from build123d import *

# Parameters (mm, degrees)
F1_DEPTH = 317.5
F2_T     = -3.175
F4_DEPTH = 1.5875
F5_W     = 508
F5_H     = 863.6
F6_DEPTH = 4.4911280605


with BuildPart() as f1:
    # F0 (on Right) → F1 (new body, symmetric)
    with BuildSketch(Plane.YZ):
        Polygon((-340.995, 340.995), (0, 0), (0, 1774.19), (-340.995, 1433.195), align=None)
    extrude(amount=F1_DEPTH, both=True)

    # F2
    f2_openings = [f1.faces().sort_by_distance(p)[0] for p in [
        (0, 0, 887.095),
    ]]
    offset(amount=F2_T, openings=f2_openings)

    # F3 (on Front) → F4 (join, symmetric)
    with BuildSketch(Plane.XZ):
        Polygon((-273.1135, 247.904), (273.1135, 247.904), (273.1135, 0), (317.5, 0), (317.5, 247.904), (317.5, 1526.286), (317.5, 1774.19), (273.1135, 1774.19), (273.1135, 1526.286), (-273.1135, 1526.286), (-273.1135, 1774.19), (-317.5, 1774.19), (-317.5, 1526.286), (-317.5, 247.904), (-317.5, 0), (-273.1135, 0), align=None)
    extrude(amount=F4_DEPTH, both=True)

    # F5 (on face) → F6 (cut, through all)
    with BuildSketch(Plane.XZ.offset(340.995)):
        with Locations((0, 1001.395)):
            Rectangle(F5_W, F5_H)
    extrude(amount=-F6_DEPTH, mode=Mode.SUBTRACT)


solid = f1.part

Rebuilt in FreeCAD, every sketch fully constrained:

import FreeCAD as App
import Part
import Sketcher
from FreeCAD import Vector
Q = App.Units.Quantity


def faces_at(feature, points):
    """Names of the faces that lie closest to the given points."""
    faces = feature.Shape.Faces
    near = lambda p: min(range(len(faces)), key=lambda i: faces[i].distToShape(Part.Vertex(*p))[0])
    return sorted({f"Face{near(p) + 1}" for p in points})

doc = App.newDocument("Part")
body = doc.addObject("PartDesign::Body", "Body")

sketch1 = body.newObject("Sketcher::SketchObject", "Sketch")
sketch1.AttachmentSupport = (doc.getObject("YZ_Plane"), [""])
sketch1.MapMode = "FlatFace"
sketch1.addGeometry(Part.LineSegment(Vector(-341, 341, 0), Vector(0, 0, 0)), False)
sketch1.addGeometry(Part.LineSegment(Vector(0, 0, 0), Vector(0, 1774, 0)), False)
sketch1.addGeometry(Part.LineSegment(Vector(0, 1774, 0), Vector(-341, 1433, 0)), False)
sketch1.addGeometry(Part.LineSegment(Vector(-341, 1433, 0), Vector(-341, 341, 0)), False)
sketch1.addConstraint(Sketcher.Constraint("Coincident", 0, 2, 1, 1))
sketch1.addConstraint(Sketcher.Constraint("Coincident", 1, 2, 2, 1))
sketch1.addConstraint(Sketcher.Constraint("Coincident", 2, 2, 3, 1))
sketch1.addConstraint(Sketcher.Constraint("Coincident", 3, 2, 0, 1))
sketch1.addConstraint(Sketcher.Constraint("Vertical", 1))
sketch1.addConstraint(Sketcher.Constraint("Vertical", 3))
sketch1.addConstraint(Sketcher.Constraint("Coincident", 0, 2, -1, 1))
sketch1.addConstraint(Sketcher.Constraint("Perpendicular", 0, 2))
sketch1.addConstraint(Sketcher.Constraint("Equal", 0, 2))
sketch1.addConstraint(Sketcher.Constraint("DistanceY", 3, 2, 3, 1, Q("43 in")))
sketch1.addConstraint(Sketcher.Constraint("DistanceY", 1, 1, 1, 2, Q("69.85 in")))
pad1 = body.newObject("PartDesign::Pad", "Pad")
pad1.Profile = sketch1
pad1.Length = Q("25 in")
pad1.Midplane = True
doc.recompute()

thickness = body.newObject("PartDesign::Thickness", "Thickness")
thickness.Base = (pad1, faces_at(pad1, [(0, 0, 887.095)]))
thickness.Value = Q("0.125 in")
thickness.Reversed = True
thickness.Join = "Arc"

sketch2 = body.newObject("Sketcher::SketchObject", "Sketch001")
sketch2.AttachmentSupport = (doc.getObject("XZ_Plane"), [""])
sketch2.MapMode = "FlatFace"
sketch2.addGeometry(Part.LineSegment(Vector(-273, 248, 0), Vector(273, 248, 0)), False)
sketch2.addGeometry(Part.LineSegment(Vector(273, 248, 0), Vector(273, 0, 0)), False)
sketch2.addGeometry(Part.LineSegment(Vector(273, 0, 0), Vector(318, 0, 0)), False)
sketch2.addGeometry(Part.LineSegment(Vector(318, 0, 0), Vector(318, 1774, 0)), False)
sketch2.addGeometry(Part.LineSegment(Vector(318, 1774, 0), Vector(273, 1774, 0)), False)
sketch2.addGeometry(Part.LineSegment(Vector(273, 1774, 0), Vector(273, 1526, 0)), False)
sketch2.addGeometry(Part.LineSegment(Vector(273, 1526, 0), Vector(-273, 1526, 0)), False)
sketch2.addGeometry(Part.LineSegment(Vector(-273, 1526, 0), Vector(-273, 1774, 0)), False)
sketch2.addGeometry(Part.LineSegment(Vector(-273, 1774, 0), Vector(-318, 1774, 0)), False)
sketch2.addGeometry(Part.LineSegment(Vector(-318, 1774, 0), Vector(-318, 0, 0)), False)
sketch2.addGeometry(Part.LineSegment(Vector(-318, 0, 0), Vector(-273, 0, 0)), False)
sketch2.addGeometry(Part.LineSegment(Vector(-273, 0, 0), Vector(-273, 248, 0)), False)
sketch2.addConstraint(Sketcher.Constraint("Coincident", 0, 2, 1, 1))
sketch2.addConstraint(Sketcher.Constraint("Coincident", 1, 2, 2, 1))
sketch2.addConstraint(Sketcher.Constraint("Coincident", 2, 2, 3, 1))
sketch2.addConstraint(Sketcher.Constraint("Coincident", 3, 2, 4, 1))
sketch2.addConstraint(Sketcher.Constraint("Coincident", 4, 2, 5, 1))
sketch2.addConstraint(Sketcher.Constraint("Coincident", 5, 2, 6, 1))
sketch2.addConstraint(Sketcher.Constraint("Coincident", 6, 2, 7, 1))
sketch2.addConstraint(Sketcher.Constraint("Coincident", 7, 2, 8, 1))
sketch2.addConstraint(Sketcher.Constraint("Coincident", 8, 2, 9, 1))
sketch2.addConstraint(Sketcher.Constraint("Coincident", 9, 2, 10, 1))
sketch2.addConstraint(Sketcher.Constraint("Coincident", 10, 2, 11, 1))
sketch2.addConstraint(Sketcher.Constraint("Coincident", 11, 2, 0, 1))
sketch2.addConstraint(Sketcher.Constraint("Horizontal", 0))
sketch2.addConstraint(Sketcher.Constraint("Vertical", 1))
sketch2.addConstraint(Sketcher.Constraint("Horizontal", 2))
sketch2.addConstraint(Sketcher.Constraint("Vertical", 3))
sketch2.addConstraint(Sketcher.Constraint("Horizontal", 4))
sketch2.addConstraint(Sketcher.Constraint("Vertical", 5))
sketch2.addConstraint(Sketcher.Constraint("Horizontal", 6))
sketch2.addConstraint(Sketcher.Constraint("Vertical", 7))
sketch2.addConstraint(Sketcher.Constraint("Horizontal", 8))
sketch2.addConstraint(Sketcher.Constraint("Vertical", 9))
sketch2.addConstraint(Sketcher.Constraint("Horizontal", 10))
sketch2.addConstraint(Sketcher.Constraint("Vertical", 11))
sketch2.addConstraint(Sketcher.Constraint("Symmetric", 2, 2, 9, 2, -1, 1))
sketch2.addConstraint(Sketcher.Constraint("Symmetric", 4, 2, 7, 2, -2))
sketch2.addConstraint(Sketcher.Constraint("Symmetric", 1, 2, 10, 2, -2))
sketch2.addConstraint(Sketcher.Constraint("Vertical", 1, 2, 4, 2))
sketch2.addConstraint(Sketcher.Constraint("Equal", 1, 5))
sketch2.addConstraint(Sketcher.Constraint("DistanceX", 8, 2, 3, 2, Q("25 in")))
sketch2.addConstraint(Sketcher.Constraint("DistanceY", 1, 2, 1, 1, Q("9.76 in")))
sketch2.addConstraint(Sketcher.Constraint("DistanceY", 3, 1, 3, 2, Q("69.85 in")))
sketch2.addConstraint(Sketcher.Constraint("DistanceX", 0, 1, 0, 2, Q("21.505 in")))
pad2 = body.newObject("PartDesign::Pad", "Pad001")
pad2.Profile = sketch2
pad2.Length = Q("0.125 in")
pad2.Midplane = True

sketch3 = body.newObject("Sketcher::SketchObject", "Sketch002")
sketch3.AttachmentSupport = (doc.getObject("XZ_Plane"), [""])
sketch3.MapMode = "FlatFace"
sketch3.AttachmentOffset = App.Placement(Vector(0, 0, 13.425 * 25.4), App.Rotation())
sketch3.addGeometry(Part.LineSegment(Vector(-254, 1433, 0), Vector(-254, 570, 0)), False)
sketch3.addGeometry(Part.LineSegment(Vector(-254, 570, 0), Vector(254, 570, 0)), False)
sketch3.addGeometry(Part.LineSegment(Vector(254, 570, 0), Vector(254, 1433, 0)), False)
sketch3.addGeometry(Part.LineSegment(Vector(254, 1433, 0), Vector(-254, 1433, 0)), False)
sketch3.addConstraint(Sketcher.Constraint("Coincident", 0, 2, 1, 1))
sketch3.addConstraint(Sketcher.Constraint("Coincident", 1, 2, 2, 1))
sketch3.addConstraint(Sketcher.Constraint("Coincident", 2, 2, 3, 1))
sketch3.addConstraint(Sketcher.Constraint("Coincident", 3, 2, 0, 1))
sketch3.addConstraint(Sketcher.Constraint("Vertical", 0))
sketch3.addConstraint(Sketcher.Constraint("Horizontal", 1))
sketch3.addConstraint(Sketcher.Constraint("Vertical", 2))
sketch3.addConstraint(Sketcher.Constraint("Horizontal", 3))
sketch3.addConstraint(Sketcher.Constraint("DistanceX", 1, 1, 1, 2, Q("20 in")))
sketch3.addConstraint(Sketcher.Constraint("DistanceY", 0, 2, 0, 1, Q("34 in")))
sketch3.addConstraint(Sketcher.Constraint("DistanceX", 0, 2, -1, 1, Q("10 in")))
sketch3.addConstraint(Sketcher.Constraint("DistanceY", -1, 1, 0, 2, Q("22.425 in")))
pocket1 = body.newObject("PartDesign::Pocket", "Pocket")
pocket1.Profile = sketch3
pocket1.Length = 4.491128

doc.recompute()
